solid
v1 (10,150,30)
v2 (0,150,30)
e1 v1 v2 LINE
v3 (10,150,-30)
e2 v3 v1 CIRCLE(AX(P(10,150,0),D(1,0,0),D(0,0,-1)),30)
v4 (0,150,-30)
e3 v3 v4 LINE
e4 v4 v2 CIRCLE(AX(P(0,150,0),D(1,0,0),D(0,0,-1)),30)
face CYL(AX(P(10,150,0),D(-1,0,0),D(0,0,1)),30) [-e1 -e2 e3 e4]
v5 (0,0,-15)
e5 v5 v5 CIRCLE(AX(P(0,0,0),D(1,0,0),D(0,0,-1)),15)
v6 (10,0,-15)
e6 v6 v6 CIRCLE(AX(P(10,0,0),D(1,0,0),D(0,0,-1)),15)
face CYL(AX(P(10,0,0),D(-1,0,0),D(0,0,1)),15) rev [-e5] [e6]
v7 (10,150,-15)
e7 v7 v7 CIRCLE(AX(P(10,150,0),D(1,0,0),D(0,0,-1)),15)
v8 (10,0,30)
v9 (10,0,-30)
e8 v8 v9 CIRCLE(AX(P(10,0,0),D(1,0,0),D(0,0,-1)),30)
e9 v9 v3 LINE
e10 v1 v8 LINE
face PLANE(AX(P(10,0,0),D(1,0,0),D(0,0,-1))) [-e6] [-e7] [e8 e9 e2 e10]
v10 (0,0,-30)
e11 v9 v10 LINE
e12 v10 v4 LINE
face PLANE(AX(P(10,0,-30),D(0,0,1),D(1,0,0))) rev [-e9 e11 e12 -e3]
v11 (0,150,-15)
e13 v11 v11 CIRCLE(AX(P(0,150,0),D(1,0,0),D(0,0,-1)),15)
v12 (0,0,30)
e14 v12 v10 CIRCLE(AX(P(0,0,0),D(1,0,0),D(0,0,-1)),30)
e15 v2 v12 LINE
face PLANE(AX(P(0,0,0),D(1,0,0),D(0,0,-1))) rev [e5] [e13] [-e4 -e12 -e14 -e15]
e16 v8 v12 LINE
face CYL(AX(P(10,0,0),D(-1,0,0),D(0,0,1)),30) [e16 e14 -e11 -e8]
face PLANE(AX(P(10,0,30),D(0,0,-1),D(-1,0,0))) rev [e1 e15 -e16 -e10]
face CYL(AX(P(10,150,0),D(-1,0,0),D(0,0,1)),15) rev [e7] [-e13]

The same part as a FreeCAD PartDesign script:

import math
import FreeCAD as App
import Part
import Sketcher
from FreeCAD import Vector

doc = App.newDocument("Part")
body = doc.addObject("PartDesign::Body", "Body")

# Sketch on YZ plane
sketch1 = body.newObject("Sketcher::SketchObject", "Sketch")
sketch1.AttachmentSupport = (doc.getObject("YZ_Plane"), [""])
sketch1.MapMode = "FlatFace"
sketch1.addGeometry([
    Part.LineSegment(Vector(150, 30, 0), Vector(0, 30, 0)),  # 0
    Part.ArcOfCircle(Part.Circle(Vector(0, 0, 0), Vector(0, 0, 1), 30), math.radians(90), math.radians(270)),  # 1
    Part.LineSegment(Vector(0, -30, 0), Vector(150, -30, 0)),  # 2
    Part.ArcOfCircle(Part.Circle(Vector(150, 0, 0), Vector(0, 0, 1), 30), math.radians(-90), math.radians(90)),  # 3
    Part.Circle(Vector(150, 0, 0), Vector(0, 0, 1), 15),  # 4
    Part.Circle(Vector(0, 0, 0), Vector(0, 0, 1), 15),  # 5
], False)
sketch1.addConstraint([
    Sketcher.Constraint("Tangent", 0, 2, 1, 1),
    Sketcher.Constraint("Tangent", 1, 2, 2, 1),
    Sketcher.Constraint("Tangent", 2, 2, 3, 1),
    Sketcher.Constraint("Tangent", 3, 2, 0, 1),
    Sketcher.Constraint("Horizontal", 0),
    Sketcher.Constraint("Horizontal", 2),
    Sketcher.Constraint("Coincident", 1, 3, -1, 1),
    Sketcher.Constraint("Coincident", 5, 3, -1, 1),
    Sketcher.Constraint("Coincident", 4, 3, 3, 3),
    Sketcher.Constraint("Equal", 4, 5),
    Sketcher.Constraint("Diameter", 4, 30.0),
    Sketcher.Constraint("Radius", 1, 30.0),
    Sketcher.Constraint("DistanceX", 0, 2, 0, 1, 150.0),
])
pad1 = body.newObject("PartDesign::Pad", "Pad")
pad1.Profile = sketch1
pad1.Length = 10

doc.recompute()
